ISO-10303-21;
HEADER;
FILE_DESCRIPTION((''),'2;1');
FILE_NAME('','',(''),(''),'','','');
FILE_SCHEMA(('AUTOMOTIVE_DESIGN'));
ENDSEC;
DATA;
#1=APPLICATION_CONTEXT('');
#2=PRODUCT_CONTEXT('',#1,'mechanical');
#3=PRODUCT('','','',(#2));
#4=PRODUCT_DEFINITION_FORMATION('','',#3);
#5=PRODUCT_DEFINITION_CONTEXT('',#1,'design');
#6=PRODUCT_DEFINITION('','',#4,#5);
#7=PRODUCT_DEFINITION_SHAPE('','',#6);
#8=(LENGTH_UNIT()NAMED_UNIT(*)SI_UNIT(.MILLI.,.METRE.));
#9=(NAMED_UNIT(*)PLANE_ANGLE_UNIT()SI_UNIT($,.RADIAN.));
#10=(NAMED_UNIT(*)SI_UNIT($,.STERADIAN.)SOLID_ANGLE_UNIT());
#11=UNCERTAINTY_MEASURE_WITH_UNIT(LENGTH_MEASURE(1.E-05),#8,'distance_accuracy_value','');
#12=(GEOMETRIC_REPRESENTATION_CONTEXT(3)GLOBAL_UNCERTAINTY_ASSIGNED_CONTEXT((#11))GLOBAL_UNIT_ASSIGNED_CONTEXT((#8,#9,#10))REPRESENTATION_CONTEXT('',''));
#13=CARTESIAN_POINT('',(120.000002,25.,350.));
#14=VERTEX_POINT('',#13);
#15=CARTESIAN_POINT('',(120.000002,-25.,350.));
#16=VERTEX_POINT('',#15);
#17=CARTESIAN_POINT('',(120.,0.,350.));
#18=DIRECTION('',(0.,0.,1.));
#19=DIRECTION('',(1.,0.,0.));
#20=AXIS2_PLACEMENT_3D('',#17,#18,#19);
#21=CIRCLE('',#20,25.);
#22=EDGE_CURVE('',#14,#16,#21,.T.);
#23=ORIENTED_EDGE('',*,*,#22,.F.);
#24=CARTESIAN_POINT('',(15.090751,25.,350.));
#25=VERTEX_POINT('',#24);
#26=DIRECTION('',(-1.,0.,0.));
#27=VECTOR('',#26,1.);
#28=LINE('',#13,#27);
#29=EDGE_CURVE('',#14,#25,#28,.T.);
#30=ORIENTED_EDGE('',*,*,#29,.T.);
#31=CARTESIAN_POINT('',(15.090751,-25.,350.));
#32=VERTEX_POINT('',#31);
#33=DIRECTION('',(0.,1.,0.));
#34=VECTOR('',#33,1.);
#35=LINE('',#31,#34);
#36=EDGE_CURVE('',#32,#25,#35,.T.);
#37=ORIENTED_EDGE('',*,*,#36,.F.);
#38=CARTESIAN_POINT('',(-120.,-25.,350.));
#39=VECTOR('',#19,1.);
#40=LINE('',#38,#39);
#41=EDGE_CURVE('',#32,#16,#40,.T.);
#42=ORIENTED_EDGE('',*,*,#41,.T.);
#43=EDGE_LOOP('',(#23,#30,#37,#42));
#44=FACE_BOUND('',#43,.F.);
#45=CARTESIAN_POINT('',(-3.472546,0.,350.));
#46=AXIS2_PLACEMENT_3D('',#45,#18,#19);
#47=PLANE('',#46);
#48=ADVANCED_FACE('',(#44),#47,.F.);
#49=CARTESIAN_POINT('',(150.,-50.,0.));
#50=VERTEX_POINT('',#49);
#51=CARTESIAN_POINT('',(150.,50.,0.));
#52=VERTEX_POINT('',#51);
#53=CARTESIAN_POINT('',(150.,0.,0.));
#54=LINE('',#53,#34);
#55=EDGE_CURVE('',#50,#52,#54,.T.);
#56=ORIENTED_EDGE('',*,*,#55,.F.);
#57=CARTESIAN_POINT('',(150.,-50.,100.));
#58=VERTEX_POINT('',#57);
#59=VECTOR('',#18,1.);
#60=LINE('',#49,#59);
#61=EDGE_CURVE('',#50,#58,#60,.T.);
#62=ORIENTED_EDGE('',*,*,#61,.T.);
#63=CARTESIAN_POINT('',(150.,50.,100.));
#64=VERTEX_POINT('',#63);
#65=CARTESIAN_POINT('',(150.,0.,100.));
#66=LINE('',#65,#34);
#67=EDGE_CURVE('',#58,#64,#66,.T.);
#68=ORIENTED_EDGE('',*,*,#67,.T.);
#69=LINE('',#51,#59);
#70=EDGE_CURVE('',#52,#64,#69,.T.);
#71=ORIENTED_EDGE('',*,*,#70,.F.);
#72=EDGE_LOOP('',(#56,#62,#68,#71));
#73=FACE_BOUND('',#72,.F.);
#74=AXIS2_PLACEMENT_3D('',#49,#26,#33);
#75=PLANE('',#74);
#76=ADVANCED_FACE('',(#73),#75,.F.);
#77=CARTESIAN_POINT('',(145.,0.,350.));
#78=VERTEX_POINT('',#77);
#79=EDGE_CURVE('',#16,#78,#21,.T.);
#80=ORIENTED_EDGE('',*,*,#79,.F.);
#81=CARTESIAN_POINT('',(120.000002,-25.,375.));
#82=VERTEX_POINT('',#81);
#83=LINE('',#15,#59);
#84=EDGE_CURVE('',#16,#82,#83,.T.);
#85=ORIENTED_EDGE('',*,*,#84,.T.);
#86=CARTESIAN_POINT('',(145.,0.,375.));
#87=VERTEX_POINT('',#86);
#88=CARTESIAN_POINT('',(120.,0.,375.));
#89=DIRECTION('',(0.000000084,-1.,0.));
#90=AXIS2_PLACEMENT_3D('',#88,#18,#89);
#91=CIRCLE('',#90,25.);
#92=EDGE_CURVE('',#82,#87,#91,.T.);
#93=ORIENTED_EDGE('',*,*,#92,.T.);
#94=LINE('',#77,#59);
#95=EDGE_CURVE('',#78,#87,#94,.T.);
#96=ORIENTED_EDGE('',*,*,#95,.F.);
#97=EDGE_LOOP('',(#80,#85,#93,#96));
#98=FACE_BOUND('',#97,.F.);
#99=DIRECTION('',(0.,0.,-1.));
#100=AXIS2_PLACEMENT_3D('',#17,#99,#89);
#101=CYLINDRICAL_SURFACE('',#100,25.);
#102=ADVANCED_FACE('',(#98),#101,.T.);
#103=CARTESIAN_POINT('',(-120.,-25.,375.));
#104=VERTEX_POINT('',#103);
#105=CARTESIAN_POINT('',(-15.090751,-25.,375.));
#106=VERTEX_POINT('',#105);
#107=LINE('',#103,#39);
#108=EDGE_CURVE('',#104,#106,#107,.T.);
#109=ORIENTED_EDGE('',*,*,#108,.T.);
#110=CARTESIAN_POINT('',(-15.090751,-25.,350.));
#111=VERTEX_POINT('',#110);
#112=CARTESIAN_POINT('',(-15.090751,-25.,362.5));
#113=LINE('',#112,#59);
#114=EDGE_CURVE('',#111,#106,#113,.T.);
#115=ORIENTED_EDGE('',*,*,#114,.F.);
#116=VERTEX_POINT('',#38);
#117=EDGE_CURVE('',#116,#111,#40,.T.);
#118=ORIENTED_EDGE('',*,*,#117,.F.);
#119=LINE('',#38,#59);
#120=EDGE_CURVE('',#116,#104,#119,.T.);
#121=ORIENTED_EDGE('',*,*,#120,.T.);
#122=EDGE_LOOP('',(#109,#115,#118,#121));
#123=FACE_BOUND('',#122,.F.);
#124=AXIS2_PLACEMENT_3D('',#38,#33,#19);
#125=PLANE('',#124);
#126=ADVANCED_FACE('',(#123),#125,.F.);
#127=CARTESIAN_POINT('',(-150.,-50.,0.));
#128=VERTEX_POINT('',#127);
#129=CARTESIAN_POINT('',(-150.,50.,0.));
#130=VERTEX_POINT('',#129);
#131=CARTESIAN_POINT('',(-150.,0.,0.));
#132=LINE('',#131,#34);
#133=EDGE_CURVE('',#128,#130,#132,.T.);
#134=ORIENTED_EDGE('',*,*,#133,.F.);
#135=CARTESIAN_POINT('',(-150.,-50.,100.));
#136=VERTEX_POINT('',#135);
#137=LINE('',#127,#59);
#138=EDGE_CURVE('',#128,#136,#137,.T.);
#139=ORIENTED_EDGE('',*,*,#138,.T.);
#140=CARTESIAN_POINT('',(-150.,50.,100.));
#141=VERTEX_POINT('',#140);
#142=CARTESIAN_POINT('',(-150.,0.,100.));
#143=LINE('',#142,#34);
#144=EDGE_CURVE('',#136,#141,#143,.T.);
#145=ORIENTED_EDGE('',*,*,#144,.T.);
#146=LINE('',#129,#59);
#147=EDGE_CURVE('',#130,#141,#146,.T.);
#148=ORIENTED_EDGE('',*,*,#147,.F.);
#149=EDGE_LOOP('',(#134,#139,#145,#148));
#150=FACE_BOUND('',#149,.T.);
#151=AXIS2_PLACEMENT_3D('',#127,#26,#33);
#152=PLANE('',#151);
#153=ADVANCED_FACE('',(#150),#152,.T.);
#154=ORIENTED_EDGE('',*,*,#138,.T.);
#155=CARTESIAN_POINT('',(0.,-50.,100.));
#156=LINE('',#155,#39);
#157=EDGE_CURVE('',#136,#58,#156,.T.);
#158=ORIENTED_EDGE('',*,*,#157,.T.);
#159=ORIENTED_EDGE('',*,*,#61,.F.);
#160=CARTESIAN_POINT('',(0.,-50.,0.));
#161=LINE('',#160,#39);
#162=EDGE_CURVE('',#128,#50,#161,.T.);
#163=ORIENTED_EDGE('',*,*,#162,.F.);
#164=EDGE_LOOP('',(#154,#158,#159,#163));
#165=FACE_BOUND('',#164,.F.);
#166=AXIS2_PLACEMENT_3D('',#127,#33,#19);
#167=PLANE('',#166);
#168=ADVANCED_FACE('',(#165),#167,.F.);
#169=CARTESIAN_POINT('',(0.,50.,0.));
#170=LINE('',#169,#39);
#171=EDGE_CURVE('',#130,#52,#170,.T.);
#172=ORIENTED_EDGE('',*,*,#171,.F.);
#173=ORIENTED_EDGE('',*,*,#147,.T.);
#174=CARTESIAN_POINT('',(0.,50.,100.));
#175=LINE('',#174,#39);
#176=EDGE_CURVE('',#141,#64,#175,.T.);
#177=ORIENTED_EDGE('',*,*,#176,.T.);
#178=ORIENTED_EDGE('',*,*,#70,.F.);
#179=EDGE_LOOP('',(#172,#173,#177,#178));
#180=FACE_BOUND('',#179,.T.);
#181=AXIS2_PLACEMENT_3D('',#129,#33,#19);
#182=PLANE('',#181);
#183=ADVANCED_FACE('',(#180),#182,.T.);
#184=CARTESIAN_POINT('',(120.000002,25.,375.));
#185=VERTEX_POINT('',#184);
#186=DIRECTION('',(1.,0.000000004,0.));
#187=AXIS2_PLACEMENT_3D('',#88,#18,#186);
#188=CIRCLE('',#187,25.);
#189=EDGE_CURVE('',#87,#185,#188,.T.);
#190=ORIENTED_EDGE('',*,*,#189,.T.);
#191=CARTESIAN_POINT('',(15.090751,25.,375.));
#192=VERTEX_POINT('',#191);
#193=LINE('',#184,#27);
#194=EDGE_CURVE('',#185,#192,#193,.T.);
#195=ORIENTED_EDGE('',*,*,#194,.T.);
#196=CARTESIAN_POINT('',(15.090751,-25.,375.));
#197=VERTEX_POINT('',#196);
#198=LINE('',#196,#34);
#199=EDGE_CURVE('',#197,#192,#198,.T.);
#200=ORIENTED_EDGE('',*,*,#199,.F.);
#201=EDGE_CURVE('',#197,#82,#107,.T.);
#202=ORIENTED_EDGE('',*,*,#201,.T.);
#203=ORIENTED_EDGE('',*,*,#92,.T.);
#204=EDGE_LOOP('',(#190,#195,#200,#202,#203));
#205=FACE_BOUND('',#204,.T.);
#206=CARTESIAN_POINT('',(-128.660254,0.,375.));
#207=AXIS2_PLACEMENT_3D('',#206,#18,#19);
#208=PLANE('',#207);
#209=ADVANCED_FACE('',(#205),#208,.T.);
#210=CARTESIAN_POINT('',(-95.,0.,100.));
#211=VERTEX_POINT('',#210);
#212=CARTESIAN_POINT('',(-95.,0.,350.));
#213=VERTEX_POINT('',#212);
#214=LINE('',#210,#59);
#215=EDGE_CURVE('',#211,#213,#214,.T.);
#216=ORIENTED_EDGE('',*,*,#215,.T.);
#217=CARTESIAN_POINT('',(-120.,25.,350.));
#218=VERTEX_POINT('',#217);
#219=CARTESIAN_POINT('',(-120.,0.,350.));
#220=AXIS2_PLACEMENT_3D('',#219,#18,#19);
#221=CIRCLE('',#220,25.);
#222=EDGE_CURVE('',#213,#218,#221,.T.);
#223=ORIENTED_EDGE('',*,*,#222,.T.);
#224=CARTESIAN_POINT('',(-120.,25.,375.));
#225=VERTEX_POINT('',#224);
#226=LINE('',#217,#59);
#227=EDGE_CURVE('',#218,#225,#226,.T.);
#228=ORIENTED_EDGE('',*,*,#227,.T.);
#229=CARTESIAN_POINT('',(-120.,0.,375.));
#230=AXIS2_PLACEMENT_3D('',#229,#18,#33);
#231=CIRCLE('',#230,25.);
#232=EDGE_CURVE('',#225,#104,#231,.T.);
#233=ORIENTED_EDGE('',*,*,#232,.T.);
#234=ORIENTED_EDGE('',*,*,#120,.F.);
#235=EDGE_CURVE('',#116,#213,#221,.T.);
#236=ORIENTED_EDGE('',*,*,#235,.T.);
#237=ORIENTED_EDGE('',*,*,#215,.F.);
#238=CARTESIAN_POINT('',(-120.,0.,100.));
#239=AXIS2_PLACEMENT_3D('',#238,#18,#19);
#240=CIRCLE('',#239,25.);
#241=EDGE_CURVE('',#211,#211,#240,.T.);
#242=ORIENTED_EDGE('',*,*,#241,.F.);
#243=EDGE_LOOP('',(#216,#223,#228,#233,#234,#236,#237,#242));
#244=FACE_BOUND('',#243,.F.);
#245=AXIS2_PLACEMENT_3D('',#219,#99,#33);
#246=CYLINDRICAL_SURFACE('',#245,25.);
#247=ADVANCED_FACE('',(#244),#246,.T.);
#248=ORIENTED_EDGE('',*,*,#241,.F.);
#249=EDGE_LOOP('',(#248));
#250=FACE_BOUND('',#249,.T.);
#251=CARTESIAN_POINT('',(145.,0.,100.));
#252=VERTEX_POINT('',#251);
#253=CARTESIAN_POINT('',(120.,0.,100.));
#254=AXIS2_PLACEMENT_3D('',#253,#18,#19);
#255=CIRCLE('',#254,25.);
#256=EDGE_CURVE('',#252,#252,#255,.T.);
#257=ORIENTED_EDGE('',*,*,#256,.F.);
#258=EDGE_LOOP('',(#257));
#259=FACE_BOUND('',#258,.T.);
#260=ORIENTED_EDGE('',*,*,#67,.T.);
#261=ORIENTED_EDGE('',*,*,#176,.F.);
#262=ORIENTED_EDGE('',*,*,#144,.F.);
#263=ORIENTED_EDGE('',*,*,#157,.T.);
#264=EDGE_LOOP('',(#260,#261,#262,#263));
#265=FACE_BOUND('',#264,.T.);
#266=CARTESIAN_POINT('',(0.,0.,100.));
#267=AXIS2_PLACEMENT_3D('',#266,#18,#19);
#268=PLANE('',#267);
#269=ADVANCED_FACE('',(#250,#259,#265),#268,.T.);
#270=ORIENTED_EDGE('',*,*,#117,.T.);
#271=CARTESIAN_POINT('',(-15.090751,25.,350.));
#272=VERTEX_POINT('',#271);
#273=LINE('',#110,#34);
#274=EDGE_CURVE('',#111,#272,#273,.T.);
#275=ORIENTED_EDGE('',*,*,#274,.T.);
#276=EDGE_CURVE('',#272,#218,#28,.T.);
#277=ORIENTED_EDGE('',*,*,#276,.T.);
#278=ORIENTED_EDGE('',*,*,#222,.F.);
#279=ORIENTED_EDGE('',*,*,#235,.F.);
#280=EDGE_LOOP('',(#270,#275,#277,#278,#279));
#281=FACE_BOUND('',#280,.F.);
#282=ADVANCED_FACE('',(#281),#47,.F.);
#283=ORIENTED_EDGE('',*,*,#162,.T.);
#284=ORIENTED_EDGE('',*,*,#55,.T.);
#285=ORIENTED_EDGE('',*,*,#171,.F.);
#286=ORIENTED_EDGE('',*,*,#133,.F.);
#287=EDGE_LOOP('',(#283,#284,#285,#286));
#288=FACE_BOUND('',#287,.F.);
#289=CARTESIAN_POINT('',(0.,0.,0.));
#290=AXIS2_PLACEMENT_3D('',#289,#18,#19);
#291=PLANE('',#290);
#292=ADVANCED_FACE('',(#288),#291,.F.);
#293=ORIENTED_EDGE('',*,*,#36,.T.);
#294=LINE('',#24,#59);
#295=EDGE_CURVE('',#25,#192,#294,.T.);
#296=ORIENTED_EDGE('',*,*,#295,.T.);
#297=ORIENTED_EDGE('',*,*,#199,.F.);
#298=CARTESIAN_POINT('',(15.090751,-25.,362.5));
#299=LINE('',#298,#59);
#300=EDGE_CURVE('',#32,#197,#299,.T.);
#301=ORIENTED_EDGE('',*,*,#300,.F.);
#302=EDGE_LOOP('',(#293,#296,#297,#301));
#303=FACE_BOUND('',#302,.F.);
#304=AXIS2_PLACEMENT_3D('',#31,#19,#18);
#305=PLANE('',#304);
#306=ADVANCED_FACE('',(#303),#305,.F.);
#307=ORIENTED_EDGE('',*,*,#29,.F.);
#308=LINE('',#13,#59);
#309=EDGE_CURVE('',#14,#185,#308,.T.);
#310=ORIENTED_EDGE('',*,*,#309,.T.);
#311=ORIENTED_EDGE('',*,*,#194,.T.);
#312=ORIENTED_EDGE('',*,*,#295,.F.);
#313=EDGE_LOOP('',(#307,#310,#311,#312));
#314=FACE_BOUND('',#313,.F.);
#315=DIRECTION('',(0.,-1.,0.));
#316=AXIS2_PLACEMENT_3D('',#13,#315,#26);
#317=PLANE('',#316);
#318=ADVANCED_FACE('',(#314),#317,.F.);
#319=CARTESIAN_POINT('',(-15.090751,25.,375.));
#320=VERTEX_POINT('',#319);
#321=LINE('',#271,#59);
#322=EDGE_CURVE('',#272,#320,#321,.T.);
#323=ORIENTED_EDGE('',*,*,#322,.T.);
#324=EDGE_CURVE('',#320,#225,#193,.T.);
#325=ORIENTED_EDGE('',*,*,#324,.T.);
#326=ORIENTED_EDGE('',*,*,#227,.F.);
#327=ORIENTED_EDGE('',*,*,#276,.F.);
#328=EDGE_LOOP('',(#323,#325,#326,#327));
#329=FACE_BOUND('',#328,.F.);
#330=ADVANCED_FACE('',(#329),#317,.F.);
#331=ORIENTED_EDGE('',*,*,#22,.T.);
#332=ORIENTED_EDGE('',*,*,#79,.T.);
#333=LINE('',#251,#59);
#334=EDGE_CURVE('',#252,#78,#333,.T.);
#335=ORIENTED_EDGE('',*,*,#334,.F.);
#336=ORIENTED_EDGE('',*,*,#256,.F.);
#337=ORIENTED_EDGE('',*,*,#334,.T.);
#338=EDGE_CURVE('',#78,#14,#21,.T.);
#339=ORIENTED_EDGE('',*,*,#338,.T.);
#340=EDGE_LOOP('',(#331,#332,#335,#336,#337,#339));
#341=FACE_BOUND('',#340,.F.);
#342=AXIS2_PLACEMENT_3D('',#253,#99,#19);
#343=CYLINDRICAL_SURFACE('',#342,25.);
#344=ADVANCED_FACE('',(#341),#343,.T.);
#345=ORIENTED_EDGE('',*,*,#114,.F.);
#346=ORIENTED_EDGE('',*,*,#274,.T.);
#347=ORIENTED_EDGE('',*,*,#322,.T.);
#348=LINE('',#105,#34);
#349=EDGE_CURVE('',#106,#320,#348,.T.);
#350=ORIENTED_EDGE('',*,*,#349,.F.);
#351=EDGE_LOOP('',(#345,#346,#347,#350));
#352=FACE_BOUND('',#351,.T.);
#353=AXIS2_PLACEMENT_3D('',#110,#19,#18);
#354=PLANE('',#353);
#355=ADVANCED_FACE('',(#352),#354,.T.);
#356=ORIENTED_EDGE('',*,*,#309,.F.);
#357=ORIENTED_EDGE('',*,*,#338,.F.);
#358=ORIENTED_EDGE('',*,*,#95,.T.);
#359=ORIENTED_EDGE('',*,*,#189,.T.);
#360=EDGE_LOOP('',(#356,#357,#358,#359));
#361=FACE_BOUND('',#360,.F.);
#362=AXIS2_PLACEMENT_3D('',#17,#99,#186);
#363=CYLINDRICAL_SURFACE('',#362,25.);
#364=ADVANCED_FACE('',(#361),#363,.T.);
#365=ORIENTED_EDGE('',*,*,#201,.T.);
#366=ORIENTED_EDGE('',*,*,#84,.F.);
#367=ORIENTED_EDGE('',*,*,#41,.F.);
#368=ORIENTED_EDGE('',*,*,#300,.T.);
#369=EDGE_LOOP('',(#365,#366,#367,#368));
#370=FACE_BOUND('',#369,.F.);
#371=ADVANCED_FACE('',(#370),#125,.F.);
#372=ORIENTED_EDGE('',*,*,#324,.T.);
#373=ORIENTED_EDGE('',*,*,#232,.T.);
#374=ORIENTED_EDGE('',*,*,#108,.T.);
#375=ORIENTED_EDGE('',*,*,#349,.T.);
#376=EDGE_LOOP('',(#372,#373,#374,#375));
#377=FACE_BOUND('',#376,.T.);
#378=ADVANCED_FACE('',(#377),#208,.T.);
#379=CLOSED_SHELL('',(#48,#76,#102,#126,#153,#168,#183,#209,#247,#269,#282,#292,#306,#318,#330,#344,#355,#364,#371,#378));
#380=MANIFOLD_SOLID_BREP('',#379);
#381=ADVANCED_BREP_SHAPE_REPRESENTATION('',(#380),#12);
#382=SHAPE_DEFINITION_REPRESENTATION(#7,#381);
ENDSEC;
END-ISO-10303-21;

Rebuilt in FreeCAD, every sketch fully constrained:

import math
import FreeCAD as App
import Part
import Sketcher
from FreeCAD import Vector


def add_polygon(sketch, points):
    """Adds a closed chain of lines whose ends are joined by coincident constraints."""
    first, n = sketch.GeometryCount, len(points)
    for a, b in zip(points, points[1:] + points[:1]):
        sketch.addGeometry(Part.LineSegment(App.Vector(*a, 0), App.Vector(*b, 0)), False)
    for i in range(n):
        sketch.addConstraint(Sketcher.Constraint("Coincident", first + i, 2, first + (i + 1) % n, 1))

doc = App.newDocument("Part")
body = doc.addObject("PartDesign::Body", "Body")

sketch1 = body.newObject("Sketcher::SketchObject", "Sketch")
sketch1.AttachmentSupport = (doc.getObject("XY_Plane"), [""])
sketch1.MapMode = "FlatFace"
add_polygon(sketch1, [(-150, 50), (-150, -50), (150, -50), (150, 50)])
sketch1.addConstraint([
    Sketcher.Constraint("Vertical", 0),
    Sketcher.Constraint("Horizontal", 1),
    Sketcher.Constraint("Vertical", 2),
    Sketcher.Constraint("Horizontal", 3),
    Sketcher.Constraint("Symmetric", 0, 2, 2, 2, -1, 1),
    Sketcher.Constraint("DistanceX", 1, 1, 1, 2, 300.0),
    Sketcher.Constraint("DistanceY", 0, 2, 0, 1, 100.0),
])
pad1 = body.newObject("PartDesign::Pad", "Pad")
pad1.Profile = sketch1
pad1.Length = 100

sketch2 = body.newObject("Sketcher::SketchObject", "Sketch001")
sketch2.AttachmentSupport = (doc.getObject("XY_Plane"), [""])
sketch2.MapMode = "FlatFace"
sketch2.AttachmentOffset = App.Placement(Vector(0, 0, 100), App.Rotation())
sketch2.addGeometry([
    Part.Circle(Vector(120, 0, 0), Vector(0, 0, 1), 25),
    Part.Circle(Vector(-120, 0, 0), Vector(0, 0, 1), 25),
], False)
sketch2.addConstraint([
    Sketcher.Constraint("Equal", 0, 1),
    Sketcher.Constraint("Symmetric", 0, 3, 1, 3, -1, 1),
    Sketcher.Constraint("PointOnObject", 0, 3, -1),
    Sketcher.Constraint("Diameter", 0, 50.0),
    Sketcher.Constraint("DistanceX", -1, 1, 0, 3, 120.0),
])
pad2 = body.newObject("PartDesign::Pad", "Pad001")
pad2.Profile = sketch2
pad2.Length = 250

sketch3 = body.newObject("Sketcher::SketchObject", "Sketch002")
sketch3.AttachmentSupport = (doc.getObject("XY_Plane"), [""])
sketch3.MapMode = "FlatFace"
sketch3.AttachmentOffset = App.Placement(Vector(0, 0, 350), App.Rotation())
add_polygon(sketch3, [(120, 25), (-120, 25), (-120, -25), (120, -25)])
sketch3.addConstraint([
    Sketcher.Constraint("Horizontal", 0),
    Sketcher.Constraint("Vertical", 1),
    Sketcher.Constraint("Horizontal", 2),
    Sketcher.Constraint("Vertical", 3),
    Sketcher.Constraint("Symmetric", 0, 2, 2, 2, -1, 1),
    Sketcher.Constraint("DistanceX", 0, 2, 0, 1, 240.000002),
    Sketcher.Constraint("DistanceY", 1, 2, 1, 1, 50.0),
])
pad3 = body.newObject("PartDesign::Pad", "Pad002")
pad3.Profile = sketch3
pad3.Length = 25

sketch4 = body.newObject("Sketcher::SketchObject", "Sketch003")
sketch4.AttachmentSupport = (doc.getObject("XY_Plane"), [""])
sketch4.MapMode = "FlatFace"
sketch4.AttachmentOffset = App.Placement(Vector(0, 0, 350), App.Rotation())
sketch4.addGeometry([
    Part.LineSegment(Vector(-120, -25, 0), Vector(-120, 25, 0)),
    Part.ArcOfCircle(Part.Circle(Vector(-120, 0, 0), Vector(0, 0, 1), 25), math.radians(90), math.radians(270)),
    Part.ArcOfCircle(Part.Circle(Vector(120, 0, 0), Vector(0, 0, 1), 25), math.radians(-90), math.radians(0)),
    Part.ArcOfCircle(Part.Circle(Vector(120, 0, 0), Vector(0, 0, 1), 25), math.radians(0), math.radians(90)),
    Part.LineSegment(Vector(120, 25, 0), Vector(120, -25, 0)),
], False)
sketch4.addConstraint([
    Sketcher.Constraint("Coincident", 0, 1, 1, 2),
    Sketcher.Constraint("Coincident", 1, 1, 0, 2),
    Sketcher.Constraint("Tangent", 2, 2, 3, 1),
    Sketcher.Constraint("Coincident", 3, 2, 4, 1),
    Sketcher.Constraint("Coincident", 4, 2, 2, 1),
    Sketcher.Constraint("Vertical", 0),
    Sketcher.Constraint("Vertical", 4),
    Sketcher.Constraint("Equal", 1, 2),
    Sketcher.Constraint("Equal", 2, 3),
    Sketcher.Constraint("Symmetric", 1, 3, 2, 3, -1, 1),
    Sketcher.Constraint("Symmetric", 1, 1, 3, 2, -2),
    Sketcher.Constraint("PointOnObject", 2, 2, -1),
    Sketcher.Constraint("Vertical", 1, 3, 0, 1),
    Sketcher.Constraint("Radius", 1, 25.0),
    Sketcher.Constraint("DistanceX", 1, 3, -1, 1, 120.0),
])
pad4 = body.newObject("PartDesign::Pad", "Pad003")
pad4.Profile = sketch4
pad4.Type = "UpToLast"

sketch5 = body.newObject("Sketcher::SketchObject", "Sketch004")
sketch5.AttachmentSupport = (doc.getObject("XZ_Plane"), [""])
sketch5.MapMode = "FlatFace"
sketch5.AttachmentOffset = App.Placement(Vector(0, 0, 25), App.Rotation())
add_polygon(sketch5, [(-15, 375), (-15, 350), (15, 350), (15, 375)])
sketch5.addConstraint([
    Sketcher.Constraint("Vertical", 0),
    Sketcher.Constraint("Horizontal", 1),
    Sketcher.Constraint("Vertical", 2),
    Sketcher.Constraint("Horizontal", 3),
    Sketcher.Constraint("DistanceY", 0, 2, 0, 1, 25.0),
    Sketcher.Constraint("DistanceY", -1, 1, 0, 2, 350.0),
    Sketcher.Constraint("DistanceX", 1, 1, 1, 2, 30.181502),
    Sketcher.Constraint("DistanceX", 0, 2, -1, 1, 15.090751),
])
pocket1 = body.newObject("PartDesign::Pocket", "Pocket")
pocket1.Profile = sketch5
pocket1.Type = "ThroughAll"

doc.recompute()
